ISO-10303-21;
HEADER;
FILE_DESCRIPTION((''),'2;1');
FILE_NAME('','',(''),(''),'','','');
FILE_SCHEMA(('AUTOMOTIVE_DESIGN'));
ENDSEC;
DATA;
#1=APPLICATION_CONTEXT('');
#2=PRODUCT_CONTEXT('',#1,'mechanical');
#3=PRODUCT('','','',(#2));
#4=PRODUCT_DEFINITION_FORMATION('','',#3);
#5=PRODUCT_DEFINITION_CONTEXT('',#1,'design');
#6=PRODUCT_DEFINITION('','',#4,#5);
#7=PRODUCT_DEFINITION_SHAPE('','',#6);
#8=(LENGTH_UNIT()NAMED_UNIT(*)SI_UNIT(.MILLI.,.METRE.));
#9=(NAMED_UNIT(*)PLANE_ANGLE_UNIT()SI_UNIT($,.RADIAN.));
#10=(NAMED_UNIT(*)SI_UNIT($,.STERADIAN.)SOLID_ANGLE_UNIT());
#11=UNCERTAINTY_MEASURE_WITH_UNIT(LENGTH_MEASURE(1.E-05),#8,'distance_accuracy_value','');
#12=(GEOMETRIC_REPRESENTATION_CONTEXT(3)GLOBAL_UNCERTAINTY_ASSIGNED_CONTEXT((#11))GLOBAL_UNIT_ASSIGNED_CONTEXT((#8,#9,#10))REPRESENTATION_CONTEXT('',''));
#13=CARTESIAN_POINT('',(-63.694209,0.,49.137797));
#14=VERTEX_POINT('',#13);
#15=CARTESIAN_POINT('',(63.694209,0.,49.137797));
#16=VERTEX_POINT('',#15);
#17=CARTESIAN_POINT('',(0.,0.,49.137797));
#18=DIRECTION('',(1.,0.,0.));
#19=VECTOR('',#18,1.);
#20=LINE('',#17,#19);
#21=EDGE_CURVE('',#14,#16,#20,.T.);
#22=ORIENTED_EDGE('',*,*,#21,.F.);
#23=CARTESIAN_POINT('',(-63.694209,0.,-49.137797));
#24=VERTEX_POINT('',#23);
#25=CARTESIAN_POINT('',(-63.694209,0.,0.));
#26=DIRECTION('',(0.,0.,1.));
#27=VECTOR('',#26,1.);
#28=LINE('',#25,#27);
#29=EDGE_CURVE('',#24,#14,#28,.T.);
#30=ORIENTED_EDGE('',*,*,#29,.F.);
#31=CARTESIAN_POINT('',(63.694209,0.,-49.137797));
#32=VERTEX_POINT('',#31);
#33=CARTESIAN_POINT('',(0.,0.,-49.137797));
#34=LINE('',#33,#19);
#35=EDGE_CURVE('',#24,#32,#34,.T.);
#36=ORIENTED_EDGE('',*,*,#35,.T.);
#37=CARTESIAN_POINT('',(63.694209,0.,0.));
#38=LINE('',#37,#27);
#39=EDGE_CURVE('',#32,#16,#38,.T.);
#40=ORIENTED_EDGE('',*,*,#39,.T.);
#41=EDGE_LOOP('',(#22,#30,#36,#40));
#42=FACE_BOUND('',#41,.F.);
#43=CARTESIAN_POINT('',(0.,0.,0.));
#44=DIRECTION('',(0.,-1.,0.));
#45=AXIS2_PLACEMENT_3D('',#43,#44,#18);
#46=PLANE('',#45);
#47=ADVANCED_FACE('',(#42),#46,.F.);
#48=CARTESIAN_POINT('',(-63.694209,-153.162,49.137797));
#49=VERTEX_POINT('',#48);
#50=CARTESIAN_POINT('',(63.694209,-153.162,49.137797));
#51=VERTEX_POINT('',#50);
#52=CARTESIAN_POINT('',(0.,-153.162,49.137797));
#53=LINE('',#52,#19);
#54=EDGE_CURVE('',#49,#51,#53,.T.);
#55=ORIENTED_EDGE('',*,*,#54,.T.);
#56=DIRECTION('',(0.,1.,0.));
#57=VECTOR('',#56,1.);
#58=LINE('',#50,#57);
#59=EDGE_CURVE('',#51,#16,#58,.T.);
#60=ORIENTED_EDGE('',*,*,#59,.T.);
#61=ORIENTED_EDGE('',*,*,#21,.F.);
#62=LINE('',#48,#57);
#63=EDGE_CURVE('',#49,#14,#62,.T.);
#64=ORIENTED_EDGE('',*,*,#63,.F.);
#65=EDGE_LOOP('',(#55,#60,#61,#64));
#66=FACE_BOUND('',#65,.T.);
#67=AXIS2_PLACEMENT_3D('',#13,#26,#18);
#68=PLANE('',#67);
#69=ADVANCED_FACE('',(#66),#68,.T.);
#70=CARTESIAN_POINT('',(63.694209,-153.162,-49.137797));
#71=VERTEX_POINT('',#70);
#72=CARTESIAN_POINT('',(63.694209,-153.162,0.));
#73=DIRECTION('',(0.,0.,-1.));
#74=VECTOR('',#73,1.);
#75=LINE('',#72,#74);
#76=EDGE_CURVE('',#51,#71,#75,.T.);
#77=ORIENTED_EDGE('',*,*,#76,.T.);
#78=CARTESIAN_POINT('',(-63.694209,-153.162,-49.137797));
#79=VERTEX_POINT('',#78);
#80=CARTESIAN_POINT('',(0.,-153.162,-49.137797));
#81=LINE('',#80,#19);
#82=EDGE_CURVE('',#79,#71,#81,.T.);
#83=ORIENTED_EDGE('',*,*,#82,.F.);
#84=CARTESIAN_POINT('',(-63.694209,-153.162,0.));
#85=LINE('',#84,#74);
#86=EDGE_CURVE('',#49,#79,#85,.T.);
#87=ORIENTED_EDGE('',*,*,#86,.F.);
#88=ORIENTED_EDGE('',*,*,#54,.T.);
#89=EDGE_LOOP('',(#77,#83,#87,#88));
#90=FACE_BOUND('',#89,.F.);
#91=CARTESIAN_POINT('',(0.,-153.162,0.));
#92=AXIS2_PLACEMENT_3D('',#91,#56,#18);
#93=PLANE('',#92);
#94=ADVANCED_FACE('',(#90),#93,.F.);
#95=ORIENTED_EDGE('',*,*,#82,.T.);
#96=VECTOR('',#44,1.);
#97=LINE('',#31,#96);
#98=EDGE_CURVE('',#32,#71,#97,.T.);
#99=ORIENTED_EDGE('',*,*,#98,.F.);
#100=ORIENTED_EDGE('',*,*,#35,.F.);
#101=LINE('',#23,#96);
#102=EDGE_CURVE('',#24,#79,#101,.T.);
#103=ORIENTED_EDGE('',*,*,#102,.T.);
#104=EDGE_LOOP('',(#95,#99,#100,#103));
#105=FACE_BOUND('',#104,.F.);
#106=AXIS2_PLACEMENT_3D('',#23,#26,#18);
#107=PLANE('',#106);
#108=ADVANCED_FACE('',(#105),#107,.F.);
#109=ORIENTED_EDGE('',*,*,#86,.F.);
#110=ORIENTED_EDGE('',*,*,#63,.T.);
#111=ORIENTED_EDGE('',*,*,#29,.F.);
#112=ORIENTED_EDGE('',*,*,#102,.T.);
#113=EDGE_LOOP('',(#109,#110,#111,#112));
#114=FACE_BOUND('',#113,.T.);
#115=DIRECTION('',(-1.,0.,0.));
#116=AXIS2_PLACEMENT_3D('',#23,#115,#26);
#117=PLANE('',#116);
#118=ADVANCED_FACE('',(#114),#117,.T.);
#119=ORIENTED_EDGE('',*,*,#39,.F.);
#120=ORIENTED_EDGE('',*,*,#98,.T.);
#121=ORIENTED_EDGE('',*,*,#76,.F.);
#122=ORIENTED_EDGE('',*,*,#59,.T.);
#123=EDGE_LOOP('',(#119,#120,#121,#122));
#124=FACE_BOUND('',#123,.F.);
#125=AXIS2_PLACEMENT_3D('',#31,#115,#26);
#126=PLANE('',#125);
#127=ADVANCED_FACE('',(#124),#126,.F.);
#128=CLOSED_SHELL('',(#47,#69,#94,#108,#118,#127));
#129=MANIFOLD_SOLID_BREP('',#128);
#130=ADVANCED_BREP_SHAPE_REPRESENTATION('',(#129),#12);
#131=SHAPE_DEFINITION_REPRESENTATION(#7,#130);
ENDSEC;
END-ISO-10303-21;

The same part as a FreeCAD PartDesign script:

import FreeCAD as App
import Part
import Sketcher
Q = App.Units.Quantity


def edges_at(feature, points):
    """Names of the edges that pass closest to the given points."""
    edges = feature.Shape.Edges
    near = lambda p: min(range(len(edges)), key=lambda i: edges[i].distToShape(Part.Vertex(*p))[0])
    return sorted({f"Edge{near(p) + 1}" for p in points})

doc = App.newDocument("Part")
body = doc.addObject("PartDesign::Body", "Body")

# Sketch on XZ plane
sketch1 = body.newObject("Sketcher::SketchObject", "Sketch")
sketch1.AttachmentSupport = (doc.getObject("XZ_Plane"), [""])
sketch1.MapMode = "FlatFace"
sketch1.addGeometry(Part.Circle(App.Vector(0, 0, 0), App.Vector(0, 0, 1), 25.079521), False)
sketch1.addConstraint([
    Sketcher.Constraint("Coincident", 0, 3, -1, 1),
    Sketcher.Constraint("Diameter", 0, 50.159042),
])
pad1 = body.newObject("PartDesign::Pad", "Pad")
pad1.Profile = sketch1
pad1.Length = Q("5 in")

# Sketch on XZ plane
sketch2 = body.newObject("Sketcher::SketchObject", "Sketch001")
sketch2.AttachmentSupport = (doc.getObject("XZ_Plane"), [""])
sketch2.MapMode = "FlatFace"
sketch2.addGeometry([
    Part.LineSegment(App.Vector(-63.694209, 49.137797, 0), App.Vector(-63.694209, -49.137797, 0)),  # 0
    Part.LineSegment(App.Vector(-63.694209, -49.137797, 0), App.Vector(63.694209, -49.137797, 0)),  # 1
    Part.LineSegment(App.Vector(63.694209, -49.137797, 0), App.Vector(63.694209, 49.137797, 0)),  # 2
    Part.LineSegment(App.Vector(63.694209, 49.137797, 0), App.Vector(-63.694209, 49.137797, 0)),  # 3
    Part.Circle(App.Vector(0, 0, 0), App.Vector(0, 0, 1), 25.079521),  # 4
], False)
sketch2.addConstraint([
    Sketcher.Constraint("Coincident", 0, 2, 1, 1),
    Sketcher.Constraint("Coincident", 1, 2, 2, 1),
    Sketcher.Constraint("Coincident", 2, 2, 3, 1),
    Sketcher.Constraint("Coincident", 3, 2, 0, 1),
    Sketcher.Constraint("Vertical", 0),
    Sketcher.Constraint("Horizontal", 1),
    Sketcher.Constraint("Vertical", 2),
    Sketcher.Constraint("Horizontal", 3),
    Sketcher.Constraint("Coincident", 4, 3, -1, 1),
    Sketcher.Constraint("Symmetric", 0, 2, 2, 2, -1, 1),
    Sketcher.Constraint("Diameter", 4, 50.159042),
    Sketcher.Constraint("DistanceX", 1, 1, 1, 2, 127.388418),
    Sketcher.Constraint("DistanceY", 0, 2, 0, 1, 98.275594),
])
pad2 = body.newObject("PartDesign::Pad", "Pad001")
pad2.Profile = sketch2
pad2.Length = Q("1 in")
doc.recompute()

fillet = body.newObject("PartDesign::Fillet", "Fillet")
fillet.Base = (pad2, edges_at(pad2, [(-25.08, -25.4, 0), (-25.08, -127, 0)]))
fillet.Radius = Q("0.2 in")

# Sketch on XZ plane
sketch3 = body.newObject("Sketcher::SketchObject", "Sketch002")
sketch3.AttachmentSupport = (doc.getObject("XZ_Plane"), [""])
sketch3.MapMode = "FlatFace"
sketch3.addGeometry([
    Part.LineSegment(App.Vector(-63.694209, -49.137797, 0), App.Vector(-63.694209, 49.137797, 0)),
    Part.LineSegment(App.Vector(-63.694209, 49.137797, 0), App.Vector(63.694209, 49.137797, 0)),
    Part.LineSegment(App.Vector(63.694209, 49.137797, 0), App.Vector(63.694209, -49.137797, 0)),
    Part.LineSegment(App.Vector(63.694209, -49.137797, 0), App.Vector(-63.694209, -49.137797, 0)),
], False)
sketch3.addConstraint([
    Sketcher.Constraint("Coincident", 0, 2, 1, 1),
    Sketcher.Constraint("Coincident", 1, 2, 2, 1),
    Sketcher.Constraint("Coincident", 2, 2, 3, 1),
    Sketcher.Constraint("Coincident", 3, 2, 0, 1),
    Sketcher.Constraint("Vertical", 0),
    Sketcher.Constraint("Horizontal", 1),
    Sketcher.Constraint("Vertical", 2),
    Sketcher.Constraint("Horizontal", 3),
    Sketcher.Constraint("Symmetric", 0, 2, 2, 2, -1, 1),
    Sketcher.Constraint("DistanceX", 1, 1, 1, 2, 127.388418),
    Sketcher.Constraint("DistanceY", 0, 1, 0, 2, 98.275594),
])
pad3 = body.newObject("PartDesign::Pad", "Pad002")
pad3.Profile = sketch3
pad3.Length = Q("6.03 in")

doc.recompute()
